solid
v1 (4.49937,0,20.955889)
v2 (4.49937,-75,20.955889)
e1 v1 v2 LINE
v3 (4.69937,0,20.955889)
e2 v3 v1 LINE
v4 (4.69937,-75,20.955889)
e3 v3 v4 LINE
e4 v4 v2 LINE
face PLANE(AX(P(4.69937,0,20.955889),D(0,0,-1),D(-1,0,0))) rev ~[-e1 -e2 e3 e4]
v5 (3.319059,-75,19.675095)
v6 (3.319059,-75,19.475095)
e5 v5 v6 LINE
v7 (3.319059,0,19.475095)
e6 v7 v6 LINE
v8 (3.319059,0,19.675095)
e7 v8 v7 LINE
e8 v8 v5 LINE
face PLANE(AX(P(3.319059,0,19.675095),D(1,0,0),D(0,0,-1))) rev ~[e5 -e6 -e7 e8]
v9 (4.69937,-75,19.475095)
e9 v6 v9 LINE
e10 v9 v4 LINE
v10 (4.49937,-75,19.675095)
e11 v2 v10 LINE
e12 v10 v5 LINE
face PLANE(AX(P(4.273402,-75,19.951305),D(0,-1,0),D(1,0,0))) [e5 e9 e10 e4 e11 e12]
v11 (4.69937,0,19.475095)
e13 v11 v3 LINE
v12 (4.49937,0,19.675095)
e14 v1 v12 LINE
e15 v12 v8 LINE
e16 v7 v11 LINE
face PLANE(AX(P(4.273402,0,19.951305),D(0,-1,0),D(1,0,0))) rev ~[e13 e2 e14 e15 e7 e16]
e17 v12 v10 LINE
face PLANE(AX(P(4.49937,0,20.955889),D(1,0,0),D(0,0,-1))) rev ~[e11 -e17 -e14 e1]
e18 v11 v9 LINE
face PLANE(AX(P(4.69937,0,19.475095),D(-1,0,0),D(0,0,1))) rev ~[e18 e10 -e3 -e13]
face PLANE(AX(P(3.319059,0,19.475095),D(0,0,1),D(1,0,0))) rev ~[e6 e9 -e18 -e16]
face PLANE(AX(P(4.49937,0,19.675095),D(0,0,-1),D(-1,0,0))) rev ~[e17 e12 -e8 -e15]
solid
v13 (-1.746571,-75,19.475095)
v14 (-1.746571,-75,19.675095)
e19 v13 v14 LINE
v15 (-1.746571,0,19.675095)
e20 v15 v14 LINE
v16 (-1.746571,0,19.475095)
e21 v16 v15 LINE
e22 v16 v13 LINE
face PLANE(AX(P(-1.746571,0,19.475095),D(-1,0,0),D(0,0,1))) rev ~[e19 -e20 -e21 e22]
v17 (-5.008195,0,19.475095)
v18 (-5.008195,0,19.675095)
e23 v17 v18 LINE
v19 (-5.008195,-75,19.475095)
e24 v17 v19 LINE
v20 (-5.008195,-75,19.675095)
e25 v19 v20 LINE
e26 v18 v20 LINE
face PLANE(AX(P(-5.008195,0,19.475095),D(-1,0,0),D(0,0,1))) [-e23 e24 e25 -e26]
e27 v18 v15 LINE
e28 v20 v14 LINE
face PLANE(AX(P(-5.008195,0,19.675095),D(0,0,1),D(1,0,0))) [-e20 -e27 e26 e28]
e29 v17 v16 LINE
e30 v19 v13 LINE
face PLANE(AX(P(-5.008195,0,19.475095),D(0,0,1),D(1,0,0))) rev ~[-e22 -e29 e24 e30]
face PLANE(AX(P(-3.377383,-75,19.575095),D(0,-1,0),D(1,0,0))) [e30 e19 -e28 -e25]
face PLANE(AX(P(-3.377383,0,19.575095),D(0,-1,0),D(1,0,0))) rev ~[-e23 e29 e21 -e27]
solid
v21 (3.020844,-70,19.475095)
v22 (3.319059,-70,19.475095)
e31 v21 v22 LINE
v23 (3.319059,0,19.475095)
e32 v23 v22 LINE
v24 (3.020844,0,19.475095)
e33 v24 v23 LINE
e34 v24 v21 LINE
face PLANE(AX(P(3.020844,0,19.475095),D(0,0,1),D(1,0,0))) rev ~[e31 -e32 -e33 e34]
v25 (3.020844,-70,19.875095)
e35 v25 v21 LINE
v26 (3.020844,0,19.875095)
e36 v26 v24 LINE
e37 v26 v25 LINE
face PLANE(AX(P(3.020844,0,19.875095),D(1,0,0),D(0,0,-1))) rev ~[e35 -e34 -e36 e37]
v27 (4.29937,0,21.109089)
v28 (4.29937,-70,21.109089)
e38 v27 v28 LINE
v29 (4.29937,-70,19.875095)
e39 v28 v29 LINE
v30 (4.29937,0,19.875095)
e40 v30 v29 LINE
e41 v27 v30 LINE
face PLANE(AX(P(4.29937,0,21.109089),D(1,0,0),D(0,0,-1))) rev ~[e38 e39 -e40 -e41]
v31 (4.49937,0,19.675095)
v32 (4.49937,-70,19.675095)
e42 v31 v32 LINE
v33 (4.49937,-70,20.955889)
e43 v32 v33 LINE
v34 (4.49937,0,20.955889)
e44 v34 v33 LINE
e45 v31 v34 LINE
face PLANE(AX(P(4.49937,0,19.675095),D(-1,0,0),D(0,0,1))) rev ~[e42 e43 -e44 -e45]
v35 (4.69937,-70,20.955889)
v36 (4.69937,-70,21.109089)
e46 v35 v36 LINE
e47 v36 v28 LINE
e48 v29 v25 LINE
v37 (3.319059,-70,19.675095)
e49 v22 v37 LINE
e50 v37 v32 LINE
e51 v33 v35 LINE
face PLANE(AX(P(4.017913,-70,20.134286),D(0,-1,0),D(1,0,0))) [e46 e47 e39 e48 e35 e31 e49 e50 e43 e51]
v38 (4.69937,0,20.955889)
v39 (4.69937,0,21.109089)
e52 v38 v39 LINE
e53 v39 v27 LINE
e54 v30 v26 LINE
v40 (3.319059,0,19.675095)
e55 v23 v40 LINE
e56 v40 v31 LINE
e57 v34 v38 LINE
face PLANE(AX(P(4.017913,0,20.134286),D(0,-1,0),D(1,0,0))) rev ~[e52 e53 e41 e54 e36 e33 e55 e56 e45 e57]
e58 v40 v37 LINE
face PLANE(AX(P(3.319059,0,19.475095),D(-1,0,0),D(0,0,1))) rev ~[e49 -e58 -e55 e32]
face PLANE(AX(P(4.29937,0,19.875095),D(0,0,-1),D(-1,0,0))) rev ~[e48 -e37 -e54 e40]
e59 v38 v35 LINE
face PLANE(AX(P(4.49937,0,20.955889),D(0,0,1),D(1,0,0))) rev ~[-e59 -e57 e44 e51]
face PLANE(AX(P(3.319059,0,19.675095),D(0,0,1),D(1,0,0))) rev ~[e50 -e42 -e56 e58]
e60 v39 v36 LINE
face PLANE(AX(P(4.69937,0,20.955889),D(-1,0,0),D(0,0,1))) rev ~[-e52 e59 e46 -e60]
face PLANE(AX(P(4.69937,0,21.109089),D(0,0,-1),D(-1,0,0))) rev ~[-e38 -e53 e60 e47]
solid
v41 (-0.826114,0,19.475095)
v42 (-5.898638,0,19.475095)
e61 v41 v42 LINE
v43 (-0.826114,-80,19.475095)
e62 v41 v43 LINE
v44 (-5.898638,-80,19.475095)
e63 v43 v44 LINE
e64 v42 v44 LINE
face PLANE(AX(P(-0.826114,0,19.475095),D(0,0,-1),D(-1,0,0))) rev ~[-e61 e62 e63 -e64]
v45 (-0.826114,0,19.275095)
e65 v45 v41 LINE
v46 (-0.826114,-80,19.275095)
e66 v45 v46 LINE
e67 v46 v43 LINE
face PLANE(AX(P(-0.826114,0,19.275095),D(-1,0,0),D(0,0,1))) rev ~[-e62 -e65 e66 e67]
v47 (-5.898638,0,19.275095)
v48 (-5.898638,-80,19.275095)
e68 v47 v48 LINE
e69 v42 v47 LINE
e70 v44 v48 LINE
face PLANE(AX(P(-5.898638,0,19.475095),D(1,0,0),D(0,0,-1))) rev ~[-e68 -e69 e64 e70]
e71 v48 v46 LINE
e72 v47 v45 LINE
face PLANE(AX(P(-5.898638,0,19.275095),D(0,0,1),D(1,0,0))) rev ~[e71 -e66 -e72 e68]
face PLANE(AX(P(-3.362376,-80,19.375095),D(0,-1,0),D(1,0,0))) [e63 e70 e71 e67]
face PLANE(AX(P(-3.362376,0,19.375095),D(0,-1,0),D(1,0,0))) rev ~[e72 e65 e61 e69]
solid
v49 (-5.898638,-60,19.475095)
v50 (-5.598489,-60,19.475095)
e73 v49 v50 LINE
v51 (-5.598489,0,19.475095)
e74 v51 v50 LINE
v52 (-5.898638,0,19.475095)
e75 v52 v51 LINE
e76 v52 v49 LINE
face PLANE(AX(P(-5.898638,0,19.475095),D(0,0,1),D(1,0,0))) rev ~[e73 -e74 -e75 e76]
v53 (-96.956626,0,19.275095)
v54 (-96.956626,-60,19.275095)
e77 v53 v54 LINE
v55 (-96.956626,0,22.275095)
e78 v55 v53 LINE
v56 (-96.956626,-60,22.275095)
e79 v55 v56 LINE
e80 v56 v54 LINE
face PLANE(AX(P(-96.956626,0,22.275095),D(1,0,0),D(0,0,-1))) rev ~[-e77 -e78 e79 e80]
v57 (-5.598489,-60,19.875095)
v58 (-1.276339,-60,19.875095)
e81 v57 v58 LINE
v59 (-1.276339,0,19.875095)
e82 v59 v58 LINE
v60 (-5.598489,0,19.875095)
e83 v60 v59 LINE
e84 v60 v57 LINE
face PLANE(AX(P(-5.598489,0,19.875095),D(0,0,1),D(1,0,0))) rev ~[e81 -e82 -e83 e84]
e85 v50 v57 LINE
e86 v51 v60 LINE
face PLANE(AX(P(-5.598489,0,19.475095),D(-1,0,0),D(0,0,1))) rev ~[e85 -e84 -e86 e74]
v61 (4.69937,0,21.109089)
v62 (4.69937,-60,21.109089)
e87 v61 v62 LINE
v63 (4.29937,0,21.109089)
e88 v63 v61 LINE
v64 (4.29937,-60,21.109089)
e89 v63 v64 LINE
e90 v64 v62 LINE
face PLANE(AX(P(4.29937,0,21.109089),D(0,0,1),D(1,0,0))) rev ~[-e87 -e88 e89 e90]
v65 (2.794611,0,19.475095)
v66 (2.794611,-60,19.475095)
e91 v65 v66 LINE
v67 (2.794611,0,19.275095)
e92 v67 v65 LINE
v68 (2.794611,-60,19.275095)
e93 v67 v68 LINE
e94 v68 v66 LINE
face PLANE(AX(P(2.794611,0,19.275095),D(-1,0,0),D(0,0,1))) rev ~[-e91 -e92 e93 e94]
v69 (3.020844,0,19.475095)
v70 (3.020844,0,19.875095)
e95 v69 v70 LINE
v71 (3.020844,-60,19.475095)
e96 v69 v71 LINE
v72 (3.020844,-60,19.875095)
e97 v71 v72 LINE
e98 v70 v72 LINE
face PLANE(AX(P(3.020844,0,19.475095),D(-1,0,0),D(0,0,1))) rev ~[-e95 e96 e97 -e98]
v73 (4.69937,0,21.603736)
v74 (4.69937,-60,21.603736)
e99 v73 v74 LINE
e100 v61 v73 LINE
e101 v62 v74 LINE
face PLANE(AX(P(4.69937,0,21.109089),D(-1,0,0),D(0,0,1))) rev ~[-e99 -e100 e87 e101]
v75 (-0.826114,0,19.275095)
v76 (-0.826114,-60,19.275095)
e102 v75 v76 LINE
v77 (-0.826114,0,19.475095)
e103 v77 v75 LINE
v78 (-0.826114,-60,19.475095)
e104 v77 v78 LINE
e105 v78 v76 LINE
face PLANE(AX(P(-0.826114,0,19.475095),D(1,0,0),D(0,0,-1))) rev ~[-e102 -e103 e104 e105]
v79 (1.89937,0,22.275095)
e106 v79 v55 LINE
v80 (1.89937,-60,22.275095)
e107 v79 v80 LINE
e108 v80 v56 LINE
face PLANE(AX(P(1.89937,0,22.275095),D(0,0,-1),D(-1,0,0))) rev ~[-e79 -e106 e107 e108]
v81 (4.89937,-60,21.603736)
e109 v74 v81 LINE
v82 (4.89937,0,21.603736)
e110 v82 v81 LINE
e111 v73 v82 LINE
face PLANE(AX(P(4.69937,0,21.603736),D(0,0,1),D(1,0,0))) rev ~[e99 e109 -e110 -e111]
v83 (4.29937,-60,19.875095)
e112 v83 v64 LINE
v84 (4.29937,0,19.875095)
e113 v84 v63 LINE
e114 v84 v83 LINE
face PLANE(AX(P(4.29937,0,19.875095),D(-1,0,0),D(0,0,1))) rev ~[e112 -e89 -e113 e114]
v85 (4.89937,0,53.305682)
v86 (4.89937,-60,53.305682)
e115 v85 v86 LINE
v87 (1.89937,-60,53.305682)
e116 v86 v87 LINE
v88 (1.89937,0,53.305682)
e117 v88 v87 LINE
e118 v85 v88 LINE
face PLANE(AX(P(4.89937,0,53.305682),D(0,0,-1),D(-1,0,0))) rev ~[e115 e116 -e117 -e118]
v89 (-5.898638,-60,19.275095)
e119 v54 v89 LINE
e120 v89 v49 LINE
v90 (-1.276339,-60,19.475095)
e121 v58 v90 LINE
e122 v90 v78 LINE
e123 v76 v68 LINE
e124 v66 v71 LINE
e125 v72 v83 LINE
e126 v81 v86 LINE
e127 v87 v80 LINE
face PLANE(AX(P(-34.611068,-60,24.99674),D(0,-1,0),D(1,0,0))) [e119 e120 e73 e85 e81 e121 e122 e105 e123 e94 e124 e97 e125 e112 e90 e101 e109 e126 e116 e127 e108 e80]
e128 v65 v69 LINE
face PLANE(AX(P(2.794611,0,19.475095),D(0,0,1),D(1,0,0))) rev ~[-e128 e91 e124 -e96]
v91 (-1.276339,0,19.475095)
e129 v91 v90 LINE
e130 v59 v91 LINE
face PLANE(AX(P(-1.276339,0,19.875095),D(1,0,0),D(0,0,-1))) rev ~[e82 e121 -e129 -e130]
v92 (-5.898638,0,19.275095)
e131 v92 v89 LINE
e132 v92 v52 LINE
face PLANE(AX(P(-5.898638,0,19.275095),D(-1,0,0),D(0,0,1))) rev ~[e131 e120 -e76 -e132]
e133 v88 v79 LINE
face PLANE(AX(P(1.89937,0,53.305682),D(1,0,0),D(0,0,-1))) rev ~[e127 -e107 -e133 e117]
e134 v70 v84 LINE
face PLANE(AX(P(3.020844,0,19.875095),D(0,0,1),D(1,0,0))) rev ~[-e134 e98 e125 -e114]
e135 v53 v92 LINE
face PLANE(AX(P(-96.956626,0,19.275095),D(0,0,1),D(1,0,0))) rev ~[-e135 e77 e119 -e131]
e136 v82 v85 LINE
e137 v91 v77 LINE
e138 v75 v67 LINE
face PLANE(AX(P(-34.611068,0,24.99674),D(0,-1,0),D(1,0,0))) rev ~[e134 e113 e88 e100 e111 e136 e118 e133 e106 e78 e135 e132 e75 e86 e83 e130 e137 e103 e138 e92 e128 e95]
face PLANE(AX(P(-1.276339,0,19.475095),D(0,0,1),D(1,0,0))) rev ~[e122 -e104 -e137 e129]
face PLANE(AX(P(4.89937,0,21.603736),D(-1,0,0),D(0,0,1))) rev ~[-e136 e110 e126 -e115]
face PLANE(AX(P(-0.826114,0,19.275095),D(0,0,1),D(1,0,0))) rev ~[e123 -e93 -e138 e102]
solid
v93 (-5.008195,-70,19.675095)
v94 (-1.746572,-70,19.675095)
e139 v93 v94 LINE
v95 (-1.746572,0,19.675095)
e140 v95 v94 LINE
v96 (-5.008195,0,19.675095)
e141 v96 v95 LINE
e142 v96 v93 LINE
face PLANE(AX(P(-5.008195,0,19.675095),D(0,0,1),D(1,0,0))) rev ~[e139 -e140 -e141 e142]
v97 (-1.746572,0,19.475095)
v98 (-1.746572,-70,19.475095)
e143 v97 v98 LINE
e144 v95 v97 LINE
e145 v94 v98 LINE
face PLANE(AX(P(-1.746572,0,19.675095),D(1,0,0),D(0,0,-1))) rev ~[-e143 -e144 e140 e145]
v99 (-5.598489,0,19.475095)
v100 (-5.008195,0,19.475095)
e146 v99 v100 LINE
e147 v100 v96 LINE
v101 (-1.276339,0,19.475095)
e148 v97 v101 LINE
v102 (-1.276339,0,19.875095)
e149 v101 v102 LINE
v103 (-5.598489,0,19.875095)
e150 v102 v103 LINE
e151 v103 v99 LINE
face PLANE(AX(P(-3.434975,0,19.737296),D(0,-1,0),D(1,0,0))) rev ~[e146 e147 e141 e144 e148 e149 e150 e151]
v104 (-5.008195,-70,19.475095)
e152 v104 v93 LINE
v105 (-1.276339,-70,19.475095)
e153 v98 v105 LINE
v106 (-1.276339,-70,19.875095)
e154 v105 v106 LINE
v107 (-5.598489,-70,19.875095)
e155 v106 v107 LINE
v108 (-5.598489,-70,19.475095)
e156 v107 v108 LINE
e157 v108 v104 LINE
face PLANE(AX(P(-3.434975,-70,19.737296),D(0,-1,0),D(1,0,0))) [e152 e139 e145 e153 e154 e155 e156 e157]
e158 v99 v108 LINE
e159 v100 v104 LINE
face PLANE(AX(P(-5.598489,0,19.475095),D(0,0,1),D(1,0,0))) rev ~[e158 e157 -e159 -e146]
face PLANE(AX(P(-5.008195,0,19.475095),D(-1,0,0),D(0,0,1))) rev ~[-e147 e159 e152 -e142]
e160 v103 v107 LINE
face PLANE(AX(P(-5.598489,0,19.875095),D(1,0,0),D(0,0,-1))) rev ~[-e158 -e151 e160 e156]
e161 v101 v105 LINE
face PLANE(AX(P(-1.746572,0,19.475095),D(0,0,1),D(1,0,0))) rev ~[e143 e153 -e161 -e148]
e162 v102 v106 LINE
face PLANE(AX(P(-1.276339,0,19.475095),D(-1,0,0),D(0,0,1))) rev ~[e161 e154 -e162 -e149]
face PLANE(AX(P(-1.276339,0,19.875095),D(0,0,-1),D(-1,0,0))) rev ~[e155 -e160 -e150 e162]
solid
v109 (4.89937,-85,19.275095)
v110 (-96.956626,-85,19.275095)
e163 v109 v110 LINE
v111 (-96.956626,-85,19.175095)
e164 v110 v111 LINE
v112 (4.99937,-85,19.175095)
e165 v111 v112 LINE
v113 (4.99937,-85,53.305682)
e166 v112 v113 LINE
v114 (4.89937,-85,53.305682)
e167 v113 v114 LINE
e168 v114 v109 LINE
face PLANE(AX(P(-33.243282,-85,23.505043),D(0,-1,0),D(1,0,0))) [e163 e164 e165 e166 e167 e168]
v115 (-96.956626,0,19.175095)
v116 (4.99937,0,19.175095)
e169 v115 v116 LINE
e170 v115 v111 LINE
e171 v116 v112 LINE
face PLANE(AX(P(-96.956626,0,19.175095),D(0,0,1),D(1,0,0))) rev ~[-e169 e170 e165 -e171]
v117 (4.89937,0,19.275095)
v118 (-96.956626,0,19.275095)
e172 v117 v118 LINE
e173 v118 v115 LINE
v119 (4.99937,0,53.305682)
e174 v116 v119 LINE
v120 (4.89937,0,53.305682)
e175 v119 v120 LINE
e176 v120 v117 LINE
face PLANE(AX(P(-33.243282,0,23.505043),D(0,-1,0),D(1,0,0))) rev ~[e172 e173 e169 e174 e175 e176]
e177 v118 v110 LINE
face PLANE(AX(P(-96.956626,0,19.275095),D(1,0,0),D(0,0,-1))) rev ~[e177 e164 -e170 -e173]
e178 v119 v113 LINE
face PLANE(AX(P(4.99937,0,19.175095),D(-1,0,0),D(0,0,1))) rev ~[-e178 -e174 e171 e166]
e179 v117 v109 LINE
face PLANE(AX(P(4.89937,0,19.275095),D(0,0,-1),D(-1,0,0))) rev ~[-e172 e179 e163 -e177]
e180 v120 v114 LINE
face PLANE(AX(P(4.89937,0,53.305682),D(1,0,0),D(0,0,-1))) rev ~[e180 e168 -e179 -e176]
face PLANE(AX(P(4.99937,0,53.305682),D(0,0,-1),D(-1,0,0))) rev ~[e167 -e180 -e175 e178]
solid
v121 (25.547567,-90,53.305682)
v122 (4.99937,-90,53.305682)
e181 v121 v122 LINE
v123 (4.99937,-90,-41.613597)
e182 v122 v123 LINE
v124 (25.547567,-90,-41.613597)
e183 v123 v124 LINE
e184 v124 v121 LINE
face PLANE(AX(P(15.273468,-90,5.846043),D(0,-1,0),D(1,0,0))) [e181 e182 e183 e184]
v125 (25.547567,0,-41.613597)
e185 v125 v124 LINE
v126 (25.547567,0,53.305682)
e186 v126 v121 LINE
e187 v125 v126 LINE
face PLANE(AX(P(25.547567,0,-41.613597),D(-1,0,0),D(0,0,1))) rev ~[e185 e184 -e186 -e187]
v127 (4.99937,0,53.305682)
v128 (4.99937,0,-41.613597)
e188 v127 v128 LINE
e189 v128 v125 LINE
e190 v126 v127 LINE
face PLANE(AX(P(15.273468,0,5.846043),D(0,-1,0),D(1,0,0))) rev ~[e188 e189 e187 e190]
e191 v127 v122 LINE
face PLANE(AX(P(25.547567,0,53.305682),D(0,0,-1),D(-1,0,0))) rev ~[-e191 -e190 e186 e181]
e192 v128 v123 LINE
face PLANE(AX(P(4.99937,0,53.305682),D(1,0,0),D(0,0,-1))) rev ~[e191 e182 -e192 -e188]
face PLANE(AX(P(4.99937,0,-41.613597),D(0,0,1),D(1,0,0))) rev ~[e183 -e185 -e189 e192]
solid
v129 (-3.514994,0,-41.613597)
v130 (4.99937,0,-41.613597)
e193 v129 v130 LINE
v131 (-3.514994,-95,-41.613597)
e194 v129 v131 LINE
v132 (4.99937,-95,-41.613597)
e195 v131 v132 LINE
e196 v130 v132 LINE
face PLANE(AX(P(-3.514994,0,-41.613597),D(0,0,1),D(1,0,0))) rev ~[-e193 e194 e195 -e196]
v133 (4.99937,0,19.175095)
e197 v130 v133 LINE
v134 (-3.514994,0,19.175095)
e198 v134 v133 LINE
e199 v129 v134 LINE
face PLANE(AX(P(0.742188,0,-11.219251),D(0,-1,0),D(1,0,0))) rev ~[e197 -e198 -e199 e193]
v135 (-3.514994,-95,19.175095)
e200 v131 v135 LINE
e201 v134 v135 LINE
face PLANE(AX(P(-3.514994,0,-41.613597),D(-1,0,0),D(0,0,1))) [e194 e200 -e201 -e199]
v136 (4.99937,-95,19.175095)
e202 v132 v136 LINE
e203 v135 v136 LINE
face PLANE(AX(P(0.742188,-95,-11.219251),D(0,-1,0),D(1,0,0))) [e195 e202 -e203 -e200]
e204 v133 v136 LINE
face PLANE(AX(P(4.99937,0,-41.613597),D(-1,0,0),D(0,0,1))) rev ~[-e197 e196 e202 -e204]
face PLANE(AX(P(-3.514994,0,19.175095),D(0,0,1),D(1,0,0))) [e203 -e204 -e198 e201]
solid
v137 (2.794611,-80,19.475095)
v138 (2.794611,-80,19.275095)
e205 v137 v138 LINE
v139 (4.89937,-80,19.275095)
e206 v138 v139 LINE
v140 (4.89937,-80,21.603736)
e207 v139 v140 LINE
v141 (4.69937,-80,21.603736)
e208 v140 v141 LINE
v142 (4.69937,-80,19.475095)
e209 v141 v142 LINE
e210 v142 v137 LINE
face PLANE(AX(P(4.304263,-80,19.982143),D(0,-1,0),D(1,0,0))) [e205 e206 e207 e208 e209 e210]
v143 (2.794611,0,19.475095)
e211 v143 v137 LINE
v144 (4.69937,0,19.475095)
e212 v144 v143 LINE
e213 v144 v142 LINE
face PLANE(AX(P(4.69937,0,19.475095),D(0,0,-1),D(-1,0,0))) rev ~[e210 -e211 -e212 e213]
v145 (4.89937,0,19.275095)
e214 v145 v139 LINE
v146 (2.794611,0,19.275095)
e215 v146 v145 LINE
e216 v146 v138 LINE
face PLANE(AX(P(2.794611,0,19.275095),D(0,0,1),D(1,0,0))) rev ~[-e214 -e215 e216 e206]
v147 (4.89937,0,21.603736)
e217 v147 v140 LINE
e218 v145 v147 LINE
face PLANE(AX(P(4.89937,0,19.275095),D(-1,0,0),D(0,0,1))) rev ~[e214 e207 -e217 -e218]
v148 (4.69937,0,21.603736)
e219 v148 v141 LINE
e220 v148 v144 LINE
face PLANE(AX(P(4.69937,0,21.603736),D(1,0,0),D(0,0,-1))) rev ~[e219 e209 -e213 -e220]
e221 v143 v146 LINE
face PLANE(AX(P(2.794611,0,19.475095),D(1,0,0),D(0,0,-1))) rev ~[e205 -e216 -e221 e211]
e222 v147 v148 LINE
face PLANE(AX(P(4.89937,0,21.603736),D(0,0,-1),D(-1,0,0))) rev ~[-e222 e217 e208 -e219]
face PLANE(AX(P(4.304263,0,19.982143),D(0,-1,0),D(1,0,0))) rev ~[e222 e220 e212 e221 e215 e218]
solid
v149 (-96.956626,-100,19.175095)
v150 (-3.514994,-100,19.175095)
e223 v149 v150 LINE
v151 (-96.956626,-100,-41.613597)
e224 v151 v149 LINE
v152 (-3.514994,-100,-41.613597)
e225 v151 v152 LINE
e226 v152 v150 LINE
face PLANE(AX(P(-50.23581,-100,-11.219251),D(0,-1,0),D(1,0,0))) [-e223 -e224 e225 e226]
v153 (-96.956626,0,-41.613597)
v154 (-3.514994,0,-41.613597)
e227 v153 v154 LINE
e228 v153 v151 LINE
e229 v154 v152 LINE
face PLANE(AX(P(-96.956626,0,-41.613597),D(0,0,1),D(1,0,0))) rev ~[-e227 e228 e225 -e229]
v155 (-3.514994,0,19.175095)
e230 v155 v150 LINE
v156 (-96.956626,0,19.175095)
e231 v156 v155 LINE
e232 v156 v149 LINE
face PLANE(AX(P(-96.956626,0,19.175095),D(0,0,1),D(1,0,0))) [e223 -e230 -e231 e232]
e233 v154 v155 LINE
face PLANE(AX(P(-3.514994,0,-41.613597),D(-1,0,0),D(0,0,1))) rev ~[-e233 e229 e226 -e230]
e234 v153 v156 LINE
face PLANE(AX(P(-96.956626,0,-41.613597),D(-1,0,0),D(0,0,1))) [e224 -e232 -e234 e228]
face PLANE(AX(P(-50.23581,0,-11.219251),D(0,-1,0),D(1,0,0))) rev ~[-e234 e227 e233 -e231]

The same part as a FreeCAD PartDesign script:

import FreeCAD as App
import Part
import Sketcher
from FreeCAD import Vector

doc = App.newDocument("Part")
body = doc.addObject("PartDesign::Body", "Body")

# Sketch on XZ plane
sketch1 = doc.addObject("Sketcher::SketchObject", "Sketch")
body.addObject(sketch1)
sketch1.AttachmentSupport = (doc.XZ_Plane, [""])
sketch1.MapMode = "FlatFace"
sketch1.addGeometry([
    Part.LineSegment(Vector(-97, 19, 0), Vector(-97, -42, 0)),
    Part.LineSegment(Vector(-97, -42, 0), Vector(-4, -42, 0)),
    Part.LineSegment(Vector(-4, -42, 0), Vector(-4, 19, 0)),
    Part.LineSegment(Vector(-4, 19, 0), Vector(-97, 19, 0)),
], False)
sketch1.addConstraint([
    Sketcher.Constraint("Coincident", 0, 2, 1, 1),
    Sketcher.Constraint("Coincident", 1, 2, 2, 1),
    Sketcher.Constraint("Coincident", 2, 2, 3, 1),
    Sketcher.Constraint("Coincident", 3, 2, 0, 1),
    Sketcher.Constraint("Vertical", 0),
    Sketcher.Constraint("Horizontal", 1),
    Sketcher.Constraint("Vertical", 2),
    Sketcher.Constraint("Horizontal", 3),
    Sketcher.Constraint("DistanceY", 0, 2, 0, 1, 60.788692),
    Sketcher.Constraint("DistanceX", 1, 1, 1, 2, 93.441633),
    Sketcher.Constraint("DistanceX", 0, 2, -1, 1, 96.956626),
    Sketcher.Constraint("DistanceY", 0, 2, -1, 1, 41.613597),
])
pad1 = doc.addObject("PartDesign::Pad", "Pad")
body.addObject(pad1)
pad1.Profile = sketch1
pad1.Length = 100
body2 = doc.addObject("PartDesign::Body", "Body001")

# Sketch on XZ plane
sketch2 = doc.addObject("Sketcher::SketchObject", "Sketch001")
body2.addObject(sketch2)
sketch2.AttachmentSupport = (doc.getObject("XZ_Plane001"), [""])
sketch2.MapMode = "FlatFace"
sketch2.addGeometry([
    Part.LineSegment(Vector(-4, 19, 0), Vector(-4, -42, 0)),
    Part.LineSegment(Vector(-4, -42, 0), Vector(5, -42, 0)),
    Part.LineSegment(Vector(5, -42, 0), Vector(5, 19, 0)),
    Part.LineSegment(Vector(5, 19, 0), Vector(-4, 19, 0)),
], False)
sketch2.addConstraint([
    Sketcher.Constraint("Coincident", 0, 2, 1, 1),
    Sketcher.Constraint("Coincident", 1, 2, 2, 1),
    Sketcher.Constraint("Coincident", 2, 2, 3, 1),
    Sketcher.Constraint("Coincident", 3, 2, 0, 1),
    Sketcher.Constraint("Vertical", 0),
    Sketcher.Constraint("Horizontal", 1),
    Sketcher.Constraint("Vertical", 2),
    Sketcher.Constraint("Horizontal", 3),
    Sketcher.Constraint("DistanceY", 0, 2, 0, 1, 60.788692),
    Sketcher.Constraint("DistanceX", 1, 1, 1, 2, 8.514363),
    Sketcher.Constraint("DistanceX", -1, 1, 1, 2, 4.99937),
    Sketcher.Constraint("DistanceY", 0, 2, -1, 1, 41.613597),
])
pad2 = doc.addObject("PartDesign::Pad", "Pad001")
body2.addObject(pad2)
pad2.Profile = sketch2
pad2.Length = 95
body3 = doc.addObject("PartDesign::Body", "Body002")

# Sketch on XZ plane
sketch3 = doc.addObject("Sketcher::SketchObject", "Sketch002")
body3.addObject(sketch3)
sketch3.AttachmentSupport = (doc.getObject("XZ_Plane002"), [""])
sketch3.MapMode = "FlatFace"
sketch3.addGeometry([
    Part.LineSegment(Vector(5, 53, 0), Vector(5, -42, 0)),
    Part.LineSegment(Vector(5, -42, 0), Vector(26, -42, 0)),
    Part.LineSegment(Vector(26, -42, 0), Vector(26, 53, 0)),
    Part.LineSegment(Vector(26, 53, 0), Vector(5, 53, 0)),
], False)
sketch3.addConstraint([
    Sketcher.Constraint("Coincident", 0, 2, 1, 1),
    Sketcher.Constraint("Coincident", 1, 2, 2, 1),
    Sketcher.Constraint("Coincident", 2, 2, 3, 1),
    Sketcher.Constraint("Coincident", 3, 2, 0, 1),
    Sketcher.Constraint("Vertical", 0),
    Sketcher.Constraint("Horizontal", 1),
    Sketcher.Constraint("Vertical", 2),
    Sketcher.Constraint("Horizontal", 3),
    Sketcher.Constraint("DistanceY", 0, 2, 0, 1, 94.919279),
    Sketcher.Constraint("DistanceX", 1, 1, 1, 2, 20.548197),
    Sketcher.Constraint("DistanceX", -1, 1, 0, 2, 4.99937),
    Sketcher.Constraint("DistanceY", -1, 1, 2, 2, 53.305682),
])
pad3 = doc.addObject("PartDesign::Pad", "Pad002")
body3.addObject(pad3)
pad3.Profile = sketch3
pad3.Length = 90
body4 = doc.addObject("PartDesign::Body", "Body003")

# Sketch on XZ plane
sketch4 = doc.addObject("Sketcher::SketchObject", "Sketch003")
body4.addObject(sketch4)
sketch4.AttachmentSupport = (doc.getObject("XZ_Plane003"), [""])
sketch4.MapMode = "FlatFace"
sketch4.addGeometry([
    Part.LineSegment(Vector(-96.96, 19.28, 0), Vector(-96.96, 19.18, 0)),  # 0
    Part.LineSegment(Vector(-96.96, 19.18, 0), Vector(5, 19.18, 0)),  # 1
    Part.LineSegment(Vector(5, 19.18, 0), Vector(5, 53.31, 0)),  # 2
    Part.LineSegment(Vector(5, 53.31, 0), Vector(4.9, 53.31, 0)),  # 3
    Part.LineSegment(Vector(4.9, 53.31, 0), Vector(4.9, 19.28, 0)),  # 4
    Part.LineSegment(Vector(4.9, 19.28, 0), Vector(-96.96, 19.28, 0)),  # 5
], False)
sketch4.addConstraint([
    Sketcher.Constraint("Coincident", 0, 2, 1, 1),
    Sketcher.Constraint("Coincident", 1, 2, 2, 1),
    Sketcher.Constraint("Coincident", 2, 2, 3, 1),
    Sketcher.Constraint("Coincident", 3, 2, 4, 1),
    Sketcher.Constraint("Coincident", 4, 2, 5, 1),
    Sketcher.Constraint("Coincident", 5, 2, 0, 1),
    Sketcher.Constraint("Vertical", 0),
    Sketcher.Constraint("Horizontal", 1),
    Sketcher.Constraint("Vertical", 2),
    Sketcher.Constraint("Horizontal", 3),
    Sketcher.Constraint("Vertical", 4),
    Sketcher.Constraint("Horizontal", 5),
    Sketcher.Constraint("Equal", 3, 0),
    Sketcher.Constraint("DistanceX", 3, 2, 3, 1, 0.1),
    Sketcher.Constraint("DistanceX", 1, 1, 1, 2, 101.955996),
    Sketcher.Constraint("DistanceY", 2, 1, 2, 2, 34.130587),
    Sketcher.Constraint("DistanceX", -1, 1, 1, 2, 4.99937),
    Sketcher.Constraint("DistanceY", -1, 1, 2, 2, 53.305682),
])
pad4 = doc.addObject("PartDesign::Pad", "Pad003")
body4.addObject(pad4)
pad4.Profile = sketch4
pad4.Length = 85
body5 = doc.addObject("PartDesign::Body", "Body004")

# Sketch on XZ plane
sketch5 = doc.addObject("Sketcher::SketchObject", "Sketch004")
body5.addObject(sketch5)
sketch5.AttachmentSupport = (doc.getObject("XZ_Plane004"), [""])
sketch5.MapMode = "FlatFace"
sketch5.addGeometry([
    Part.LineSegment(Vector(-5.9, 19.48, 0), Vector(-5.9, 19.28, 0)),
    Part.LineSegment(Vector(-5.9, 19.28, 0), Vector(-0.83, 19.28, 0)),
    Part.LineSegment(Vector(-0.83, 19.28, 0), Vector(-0.83, 19.48, 0)),
    Part.LineSegment(Vector(-0.83, 19.48, 0), Vector(-5.9, 19.48, 0)),
], False)
sketch5.addConstraint([
    Sketcher.Constraint("Coincident", 0, 2, 1, 1),
    Sketcher.Constraint("Coincident", 1, 2, 2, 1),
    Sketcher.Constraint("Coincident", 2, 2, 3, 1),
    Sketcher.Constraint("Coincident", 3, 2, 0, 1),
    Sketcher.Constraint("Vertical", 0),
    Sketcher.Constraint("Horizontal", 1),
    Sketcher.Constraint("Vertical", 2),
    Sketcher.Constraint("Horizontal", 3),
    Sketcher.Constraint("DistanceY", 0, 2, 0, 1, 0.2),
    Sketcher.Constraint("DistanceX", 1, 1, 1, 2, 5.072524),
    Sketcher.Constraint("DistanceX", 0, 2, -1, 1, 5.898638),
    Sketcher.Constraint("DistanceY", -1, 1, 0, 2, 19.275095),
])
pad5 = doc.addObject("PartDesign::Pad", "Pad004")
body5.addObject(pad5)
pad5.Profile = sketch5
pad5.Length = 80
body6 = doc.addObject("PartDesign::Body", "Body005")

# Sketch on XZ plane
sketch6 = doc.addObject("Sketcher::SketchObject", "Sketch005")
body6.addObject(sketch6)
sketch6.AttachmentSupport = (doc.getObject("XZ_Plane005"), [""])
sketch6.MapMode = "FlatFace"
sketch6.addGeometry([
    Part.LineSegment(Vector(2.79, 19.48, 0), Vector(2.79, 19.28, 0)),  # 0
    Part.LineSegment(Vector(2.79, 19.28, 0), Vector(4.9, 19.28, 0)),  # 1
    Part.LineSegment(Vector(4.9, 19.28, 0), Vector(4.9, 21.6, 0)),  # 2
    Part.LineSegment(Vector(4.9, 21.6, 0), Vector(4.7, 21.6, 0)),  # 3
    Part.LineSegment(Vector(4.7, 21.6, 0), Vector(4.7, 19.48, 0)),  # 4
    Part.LineSegment(Vector(4.7, 19.48, 0), Vector(2.79, 19.48, 0)),  # 5
], False)
sketch6.addConstraint([
    Sketcher.Constraint("Coincident", 0, 2, 1, 1),
    Sketcher.Constraint("Coincident", 1, 2, 2, 1),
    Sketcher.Constraint("Coincident", 2, 2, 3, 1),
    Sketcher.Constraint("Coincident", 3, 2, 4, 1),
    Sketcher.Constraint("Coincident", 4, 2, 5, 1),
    Sketcher.Constraint("Coincident", 5, 2, 0, 1),
    Sketcher.Constraint("Vertical", 0),
    Sketcher.Constraint("Horizontal", 1),
    Sketcher.Constraint("Vertical", 2),
    Sketcher.Constraint("Horizontal", 3),
    Sketcher.Constraint("Vertical", 4),
    Sketcher.Constraint("Horizontal", 5),
    Sketcher.Constraint("Equal", 3, 0),
    Sketcher.Constraint("DistanceX", 3, 2, 3, 1, 0.2),
    Sketcher.Constraint("DistanceX", 1, 1, 1, 2, 2.104759),
    Sketcher.Constraint("DistanceY", 2, 1, 2, 2, 2.328641),
    Sketcher.Constraint("DistanceX", -1, 1, 0, 2, 2.794611),
    Sketcher.Constraint("DistanceY", -1, 1, 0, 2, 19.275095),
])
pad6 = doc.addObject("PartDesign::Pad", "Pad005")
body6.addObject(pad6)
pad6.Profile = sketch6
pad6.Length = 80
body7 = doc.addObject("PartDesign::Body", "Body006")

# Sketch on XZ plane
sketch7 = doc.addObject("Sketcher::SketchObject", "Sketch006")
body7.addObject(sketch7)
sketch7.AttachmentSupport = (doc.getObject("XZ_Plane006"), [""])
sketch7.MapMode = "FlatFace"
sketch7.addGeometry([
    Part.LineSegment(Vector(-5.01, 19.68, 0), Vector(-5.01, 19.48, 0)),
    Part.LineSegment(Vector(-5.01, 19.48, 0), Vector(-1.75, 19.48, 0)),
    Part.LineSegment(Vector(-1.75, 19.48, 0), Vector(-1.75, 19.68, 0)),
    Part.LineSegment(Vector(-1.75, 19.68, 0), Vector(-5.01, 19.68, 0)),
], False)
sketch7.addConstraint([
    Sketcher.Constraint("Coincident", 0, 2, 1, 1),
    Sketcher.Constraint("Coincident", 1, 2, 2, 1),
    Sketcher.Constraint("Coincident", 2, 2, 3, 1),
    Sketcher.Constraint("Coincident", 3, 2, 0, 1),
    Sketcher.Constraint("Vertical", 0),
    Sketcher.Constraint("Horizontal", 1),
    Sketcher.Constraint("Vertical", 2),
    Sketcher.Constraint("Horizontal", 3),
    Sketcher.Constraint("DistanceY", 0, 2, 0, 1, 0.2),
    Sketcher.Constraint("DistanceX", 1, 1, 1, 2, 3.261623),
    Sketcher.Constraint("DistanceX", 1, 2, -1, 1, 1.746571),
    Sketcher.Constraint("DistanceY", -1, 1, 0, 2, 19.475095),
])
pad7 = doc.addObject("PartDesign::Pad", "Pad006")
body7.addObject(pad7)
pad7.Profile = sketch7
pad7.Length = 75
body8 = doc.addObject("PartDesign::Body", "Body007")

# Sketch on XZ plane
sketch8 = doc.addObject("Sketcher::SketchObject", "Sketch007")
body8.addObject(sketch8)
sketch8.AttachmentSupport = (doc.getObject("XZ_Plane007"), [""])
sketch8.MapMode = "FlatFace"
sketch8.addGeometry([
    Part.LineSegment(Vector(3.32, 19.68, 0), Vector(3.32, 19.48, 0)),  # 0
    Part.LineSegment(Vector(3.32, 19.48, 0), Vector(4.7, 19.48, 0)),  # 1
    Part.LineSegment(Vector(4.7, 19.48, 0), Vector(4.7, 20.96, 0)),  # 2
    Part.LineSegment(Vector(4.7, 20.96, 0), Vector(4.5, 20.96, 0)),  # 3
    Part.LineSegment(Vector(4.5, 20.96, 0), Vector(4.5, 19.68, 0)),  # 4
    Part.LineSegment(Vector(4.5, 19.68, 0), Vector(3.32, 19.68, 0)),  # 5
], False)
sketch8.addConstraint([
    Sketcher.Constraint("Coincident", 0, 2, 1, 1),
    Sketcher.Constraint("Coincident", 1, 2, 2, 1),
    Sketcher.Constraint("Coincident", 2, 2, 3, 1),
    Sketcher.Constraint("Coincident", 3, 2, 4, 1),
    Sketcher.Constraint("Coincident", 4, 2, 5, 1),
    Sketcher.Constraint("Coincident", 5, 2, 0, 1),
    Sketcher.Constraint("Vertical", 0),
    Sketcher.Constraint("Horizontal", 1),
    Sketcher.Constraint("Vertical", 2),
    Sketcher.Constraint("Horizontal", 3),
    Sketcher.Constraint("Vertical", 4),
    Sketcher.Constraint("Horizontal", 5),
    Sketcher.Constraint("Equal", 3, 0),
    Sketcher.Constraint("DistanceX", 3, 2, 3, 1, 0.2),
    Sketcher.Constraint("DistanceX", 1, 1, 1, 2, 1.380311),
    Sketcher.Constraint("DistanceY", 2, 1, 2, 2, 1.480794),
    Sketcher.Constraint("DistanceX", -1, 1, 0, 2, 3.319059),
    Sketcher.Constraint("DistanceY", -1, 1, 2, 2, 20.955889),
])
pad8 = doc.addObject("PartDesign::Pad", "Pad007")
body8.addObject(pad8)
pad8.Profile = sketch8
pad8.Length = 75
body9 = doc.addObject("PartDesign::Body", "Body008")

# Sketch on XZ plane
sketch9 = doc.addObject("Sketcher::SketchObject", "Sketch008")
body9.addObject(sketch9)
sketch9.AttachmentSupport = (doc.getObject("XZ_Plane008"), [""])
sketch9.MapMode = "FlatFace"
sketch9.addGeometry([
    Part.LineSegment(Vector(-5.6, 19.88, 0), Vector(-5.6, 19.48, 0)),  # 0
    Part.LineSegment(Vector(-5.6, 19.48, 0), Vector(-5.01, 19.48, 0)),  # 1
    Part.LineSegment(Vector(-5.01, 19.48, 0), Vector(-5.01, 19.68, 0)),  # 2
    Part.LineSegment(Vector(-5.01, 19.68, 0), Vector(-1.75, 19.68, 0)),  # 3
    Part.LineSegment(Vector(-1.75, 19.68, 0), Vector(-1.75, 19.48, 0)),  # 4
    Part.LineSegment(Vector(-1.75, 19.48, 0), Vector(-1.28, 19.48, 0)),  # 5
    Part.LineSegment(Vector(-1.28, 19.48, 0), Vector(-1.28, 19.88, 0)),  # 6
    Part.LineSegment(Vector(-1.28, 19.88, 0), Vector(-5.6, 19.88, 0)),  # 7
], False)
sketch9.addConstraint([
    Sketcher.Constraint("Coincident", 0, 2, 1, 1),
    Sketcher.Constraint("Coincident", 1, 2, 2, 1),
    Sketcher.Constraint("Coincident", 2, 2, 3, 1),
    Sketcher.Constraint("Coincident", 3, 2, 4, 1),
    Sketcher.Constraint("Coincident", 4, 2, 5, 1),
    Sketcher.Constraint("Coincident", 5, 2, 6, 1),
    Sketcher.Constraint("Coincident", 6, 2, 7, 1),
    Sketcher.Constraint("Coincident", 7, 2, 0, 1),
    Sketcher.Constraint("Vertical", 0),
    Sketcher.Constraint("Horizontal", 1),
    Sketcher.Constraint("Vertical", 2),
    Sketcher.Constraint("Horizontal", 3),
    Sketcher.Constraint("Vertical", 4),
    Sketcher.Constraint("Horizontal", 5),
    Sketcher.Constraint("Vertical", 6),
    Sketcher.Constraint("Horizontal", 7),
    Sketcher.Constraint("Horizontal", 1, 2, 4, 2),
    Sketcher.Constraint("DistanceY", 0, 2, 0, 1, 0.4),
    Sketcher.Constraint("DistanceY", 2, 1, 2, 2, 0.2),
    Sketcher.Constraint("DistanceX", 7, 2, 7, 1, 4.32215),
    Sketcher.Constraint("DistanceX", 1, 1, 1, 2, 0.590294),
    Sketcher.Constraint("DistanceX", 3, 1, 3, 2, 3.261623),
    Sketcher.Constraint("DistanceX", 0, 2, -1, 1, 5.598489),
    Sketcher.Constraint("DistanceY", -1, 1, 0, 2, 19.475095),
])
pad9 = doc.addObject("PartDesign::Pad", "Pad008")
body9.addObject(pad9)
pad9.Profile = sketch9
pad9.Length = 70
body10 = doc.addObject("PartDesign::Body", "Body009")

# Sketch on XZ plane
sketch10 = doc.addObject("Sketcher::SketchObject", "Sketch009")
body10.addObject(sketch10)
sketch10.AttachmentSupport = (doc.getObject("XZ_Plane009"), [""])
sketch10.MapMode = "FlatFace"
sketch10.addGeometry([
    Part.LineSegment(Vector(3.02, 19.88, 0), Vector(3.02, 19.48, 0)),  # 0
    Part.LineSegment(Vector(3.02, 19.48, 0), Vector(3.32, 19.48, 0)),  # 1
    Part.LineSegment(Vector(3.32, 19.48, 0), Vector(3.32, 19.68, 0)),  # 2
    Part.LineSegment(Vector(3.32, 19.68, 0), Vector(4.5, 19.68, 0)),  # 3
    Part.LineSegment(Vector(4.5, 19.68, 0), Vector(4.5, 20.96, 0)),  # 4
    Part.LineSegment(Vector(4.5, 20.96, 0), Vector(4.7, 20.96, 0)),  # 5
    Part.LineSegment(Vector(4.7, 20.96, 0), Vector(4.7, 21.11, 0)),  # 6
    Part.LineSegment(Vector(4.7, 21.11, 0), Vector(4.3, 21.11, 0)),  # 7
    Part.LineSegment(Vector(4.3, 21.11, 0), Vector(4.3, 19.88, 0)),  # 8
    Part.LineSegment(Vector(4.3, 19.88, 0), Vector(3.02, 19.88, 0)),  # 9
], False)
sketch10.addConstraint([
    Sketcher.Constraint("Coincident", 0, 2, 1, 1),
    Sketcher.Constraint("Coincident", 1, 2, 2, 1),
    Sketcher.Constraint("Coincident", 2, 2, 3, 1),
    Sketcher.Constraint("Coincident", 3, 2, 4, 1),
    Sketcher.Constraint("Coincident", 4, 2, 5, 1),
    Sketcher.Constraint("Coincident", 5, 2, 6, 1),
    Sketcher.Constraint("Coincident", 6, 2, 7, 1),
    Sketcher.Constraint("Coincident", 7, 2, 8, 1),
    Sketcher.Constraint("Coincident", 8, 2, 9, 1),
    Sketcher.Constraint("Coincident", 9, 2, 0, 1),
    Sketcher.Constraint("Vertical", 0),
    Sketcher.Constraint("Horizontal", 1),
    Sketcher.Constraint("Vertical", 2),
    Sketcher.Constraint("Horizontal", 3),
    Sketcher.Constraint("Vertical", 4),
    Sketcher.Constraint("Horizontal", 5),
    Sketcher.Constraint("Vertical", 6),
    Sketcher.Constraint("Horizontal", 7),
    Sketcher.Constraint("Vertical", 8),
    Sketcher.Constraint("Horizontal", 9),
    Sketcher.Constraint("Equal", 7, 0),
    Sketcher.Constraint("Equal", 5, 2),
    Sketcher.Constraint("DistanceX", 5, 1, 5, 2, 0.2),
    Sketcher.Constraint("DistanceX", 7, 2, 7, 1, 0.4),
    Sketcher.Constraint("DistanceY", 6, 1, 6, 2, 0.1532),
    Sketcher.Constraint("DistanceX", 3, 1, 3, 2, 1.180311),
    Sketcher.Constraint("DistanceX", 1, 1, 1, 2, 0.298215),
    Sketcher.Constraint("DistanceY", 4, 1, 4, 2, 1.280794),
    Sketcher.Constraint("DistanceX", -1, 1, 1, 2, 3.319059),
    Sketcher.Constraint("DistanceY", -1, 1, 4, 2, 20.955889),
])
pad10 = doc.addObject("PartDesign::Pad", "Pad009")
body10.addObject(pad10)
pad10.Profile = sketch10
pad10.Length = 70
body11 = doc.addObject("PartDesign::Body", "Body010")

# Sketch on XZ plane
sketch11 = doc.addObject("Sketcher::SketchObject", "Sketch010")
body11.addObject(sketch11)
sketch11.AttachmentSupport = (doc.getObject("XZ_Plane010"), [""])
sketch11.MapMode = "FlatFace"
sketch11.addGeometry([
    Part.LineSegment(Vector(-96.96, 22.28, 0), Vector(-96.96, 19.28, 0)),  # 0
    Part.LineSegment(Vector(-96.96, 19.28, 0), Vector(-5.9, 19.28, 0)),  # 1
    Part.LineSegment(Vector(-5.9, 19.28, 0), Vector(-5.9, 19.48, 0)),  # 2
    Part.LineSegment(Vector(-5.9, 19.48, 0), Vector(-5.6, 19.48, 0)),  # 3
    Part.LineSegment(Vector(-5.6, 19.48, 0), Vector(-5.6, 19.88, 0)),  # 4
    Part.LineSegment(Vector(-5.6, 19.88, 0), Vector(-1.28, 19.88, 0)),  # 5
    Part.LineSegment(Vector(-1.28, 19.88, 0), Vector(-1.28, 19.48, 0)),  # 6
    Part.LineSegment(Vector(-1.28, 19.48, 0), Vector(-0.83, 19.48, 0)),  # 7
    Part.LineSegment(Vector(-0.83, 19.48, 0), Vector(-0.83, 19.28, 0)),  # 8
    Part.LineSegment(Vector(-0.83, 19.28, 0), Vector(2.79, 19.28, 0)),  # 9
    Part.LineSegment(Vector(2.79, 19.28, 0), Vector(2.79, 19.48, 0)),  # 10
    Part.LineSegment(Vector(2.79, 19.48, 0), Vector(3.02, 19.48, 0)),  # 11
    Part.LineSegment(Vector(3.02, 19.48, 0), Vector(3.02, 19.88, 0)),  # 12
    Part.LineSegment(Vector(3.02, 19.88, 0), Vector(4.3, 19.88, 0)),  # 13
    Part.LineSegment(Vector(4.3, 19.88, 0), Vector(4.3, 21.11, 0)),  # 14
    Part.LineSegment(Vector(4.3, 21.11, 0), Vector(4.7, 21.11, 0)),  # 15
    Part.LineSegment(Vector(4.7, 21.11, 0), Vector(4.7, 21.6, 0)),  # 16
    Part.LineSegment(Vector(4.7, 21.6, 0), Vector(4.9, 21.6, 0)),  # 17
    Part.LineSegment(Vector(4.9, 21.6, 0), Vector(4.9, 53.31, 0)),  # 18
    Part.LineSegment(Vector(4.9, 53.31, 0), Vector(1.9, 53.31, 0)),  # 19
    Part.LineSegment(Vector(1.9, 53.31, 0), Vector(1.9, 22.28, 0)),  # 20
    Part.LineSegment(Vector(1.9, 22.28, 0), Vector(-96.96, 22.28, 0)),  # 21
], False)
sketch11.addConstraint([
    Sketcher.Constraint("Coincident", 0, 2, 1, 1),
    Sketcher.Constraint("Coincident", 1, 2, 2, 1),
    Sketcher.Constraint("Coincident", 2, 2, 3, 1),
    Sketcher.Constraint("Coincident", 3, 2, 4, 1),
    Sketcher.Constraint("Coincident", 4, 2, 5, 1),
    Sketcher.Constraint("Coincident", 5, 2, 6, 1),
    Sketcher.Constraint("Coincident", 6, 2, 7, 1),
    Sketcher.Constraint("Coincident", 7, 2, 8, 1),
    Sketcher.Constraint("Coincident", 8, 2, 9, 1),
    Sketcher.Constraint("Coincident", 9, 2, 10, 1),
    Sketcher.Constraint("Coincident", 10, 2, 11, 1),
    Sketcher.Constraint("Coincident", 11, 2, 12, 1),
    Sketcher.Constraint("Coincident", 12, 2, 13, 1),
    Sketcher.Constraint("Coincident", 13, 2, 14, 1),
    Sketcher.Constraint("Coincident", 14, 2, 15, 1),
    Sketcher.Constraint("Coincident", 15, 2, 16, 1),
    Sketcher.Constraint("Coincident", 16, 2, 17, 1),
    Sketcher.Constraint("Coincident", 17, 2, 18, 1),
    Sketcher.Constraint("Coincident", 18, 2, 19, 1),
    Sketcher.Constraint("Coincident", 19, 2, 20, 1),
    Sketcher.Constraint("Coincident", 20, 2, 21, 1),
    Sketcher.Constraint("Coincident", 21, 2, 0, 1),
    Sketcher.Constraint("Vertical", 0),
    Sketcher.Constraint("Horizontal", 1),
    Sketcher.Constraint("Vertical", 2),
    Sketcher.Constraint("Horizontal", 3),
    Sketcher.Constraint("Vertical", 4),
    Sketcher.Constraint("Horizontal", 5),
    Sketcher.Constraint("Vertical", 6),
    Sketcher.Constraint("Horizontal", 7),
    Sketcher.Constraint("Vertical", 8),
    Sketcher.Constraint("Horizontal", 9),
    Sketcher.Constraint("Vertical", 10),
    Sketcher.Constraint("Horizontal", 11),
    Sketcher.Constraint("Vertical", 12),
    Sketcher.Constraint("Horizontal", 13),
    Sketcher.Constraint("Vertical", 14),
    Sketcher.Constraint("Horizontal", 15),
    Sketcher.Constraint("Vertical", 16),
    Sketcher.Constraint("Horizontal", 17),
    Sketcher.Constraint("Vertical", 18),
    Sketcher.Constraint("Horizontal", 19),
    Sketcher.Constraint("Vertical", 20),
    Sketcher.Constraint("Horizontal", 21),
    Sketcher.Constraint("Horizontal", 3, 2, 6, 2),
    Sketcher.Constraint("Horizontal", 1, 2, 8, 2),
    Sketcher.Constraint("Horizontal", 7, 2, 10, 2),
    Sketcher.Constraint("Horizontal", 5, 2, 12, 2),
    Sketcher.Constraint("Equal", 19, 0),
    Sketcher.Constraint("Equal", 17, 2),
    Sketcher.Constraint("Equal", 15, 4),
    Sketcher.Constraint("DistanceX", 19, 2, 19, 1, 3.0),
    Sketcher.Constraint("DistanceX", 15, 1, 15, 2, 0.4),
    Sketcher.Constraint("DistanceX", 17, 1, 17, 2, 0.2),
    Sketcher.Constraint("DistanceX", 3, 1, 3, 2, 0.300149),
    Sketcher.Constraint("DistanceX", 5, 1, 5, 2, 4.32215),
    Sketcher.Constraint("DistanceX", 3, 2, 9, 2, 8.3931),
    Sketcher.Constraint("DistanceX", 1, 1, 1, 2, 91.057988),
    Sketcher.Constraint("DistanceX", 7, 1, 7, 2, 0.450225),
    Sketcher.Constraint("DistanceX", 11, 1, 11, 2, 0.226233),
    Sketcher.Constraint("DistanceX", 13, 1, 13, 2, 1.278526),
    Sketcher.Constraint("DistanceY", 14, 1, 14, 2, 1.233994),
    Sketcher.Constraint("DistanceY", 16, 1, 16, 2, 0.494647),
    Sketcher.Constraint("DistanceY", 18, 1, 18, 2, 31.701946),
    Sketcher.Constraint("DistanceX", 3, 2, -1, 1, 5.598489),
    Sketcher.Constraint("DistanceY", -1, 1, 14, 2, 21.109089),
])
pad11 = doc.addObject("PartDesign::Pad", "Pad010")
body11.addObject(pad11)
pad11.Profile = sketch11
pad11.Length = 60

doc.recompute()
